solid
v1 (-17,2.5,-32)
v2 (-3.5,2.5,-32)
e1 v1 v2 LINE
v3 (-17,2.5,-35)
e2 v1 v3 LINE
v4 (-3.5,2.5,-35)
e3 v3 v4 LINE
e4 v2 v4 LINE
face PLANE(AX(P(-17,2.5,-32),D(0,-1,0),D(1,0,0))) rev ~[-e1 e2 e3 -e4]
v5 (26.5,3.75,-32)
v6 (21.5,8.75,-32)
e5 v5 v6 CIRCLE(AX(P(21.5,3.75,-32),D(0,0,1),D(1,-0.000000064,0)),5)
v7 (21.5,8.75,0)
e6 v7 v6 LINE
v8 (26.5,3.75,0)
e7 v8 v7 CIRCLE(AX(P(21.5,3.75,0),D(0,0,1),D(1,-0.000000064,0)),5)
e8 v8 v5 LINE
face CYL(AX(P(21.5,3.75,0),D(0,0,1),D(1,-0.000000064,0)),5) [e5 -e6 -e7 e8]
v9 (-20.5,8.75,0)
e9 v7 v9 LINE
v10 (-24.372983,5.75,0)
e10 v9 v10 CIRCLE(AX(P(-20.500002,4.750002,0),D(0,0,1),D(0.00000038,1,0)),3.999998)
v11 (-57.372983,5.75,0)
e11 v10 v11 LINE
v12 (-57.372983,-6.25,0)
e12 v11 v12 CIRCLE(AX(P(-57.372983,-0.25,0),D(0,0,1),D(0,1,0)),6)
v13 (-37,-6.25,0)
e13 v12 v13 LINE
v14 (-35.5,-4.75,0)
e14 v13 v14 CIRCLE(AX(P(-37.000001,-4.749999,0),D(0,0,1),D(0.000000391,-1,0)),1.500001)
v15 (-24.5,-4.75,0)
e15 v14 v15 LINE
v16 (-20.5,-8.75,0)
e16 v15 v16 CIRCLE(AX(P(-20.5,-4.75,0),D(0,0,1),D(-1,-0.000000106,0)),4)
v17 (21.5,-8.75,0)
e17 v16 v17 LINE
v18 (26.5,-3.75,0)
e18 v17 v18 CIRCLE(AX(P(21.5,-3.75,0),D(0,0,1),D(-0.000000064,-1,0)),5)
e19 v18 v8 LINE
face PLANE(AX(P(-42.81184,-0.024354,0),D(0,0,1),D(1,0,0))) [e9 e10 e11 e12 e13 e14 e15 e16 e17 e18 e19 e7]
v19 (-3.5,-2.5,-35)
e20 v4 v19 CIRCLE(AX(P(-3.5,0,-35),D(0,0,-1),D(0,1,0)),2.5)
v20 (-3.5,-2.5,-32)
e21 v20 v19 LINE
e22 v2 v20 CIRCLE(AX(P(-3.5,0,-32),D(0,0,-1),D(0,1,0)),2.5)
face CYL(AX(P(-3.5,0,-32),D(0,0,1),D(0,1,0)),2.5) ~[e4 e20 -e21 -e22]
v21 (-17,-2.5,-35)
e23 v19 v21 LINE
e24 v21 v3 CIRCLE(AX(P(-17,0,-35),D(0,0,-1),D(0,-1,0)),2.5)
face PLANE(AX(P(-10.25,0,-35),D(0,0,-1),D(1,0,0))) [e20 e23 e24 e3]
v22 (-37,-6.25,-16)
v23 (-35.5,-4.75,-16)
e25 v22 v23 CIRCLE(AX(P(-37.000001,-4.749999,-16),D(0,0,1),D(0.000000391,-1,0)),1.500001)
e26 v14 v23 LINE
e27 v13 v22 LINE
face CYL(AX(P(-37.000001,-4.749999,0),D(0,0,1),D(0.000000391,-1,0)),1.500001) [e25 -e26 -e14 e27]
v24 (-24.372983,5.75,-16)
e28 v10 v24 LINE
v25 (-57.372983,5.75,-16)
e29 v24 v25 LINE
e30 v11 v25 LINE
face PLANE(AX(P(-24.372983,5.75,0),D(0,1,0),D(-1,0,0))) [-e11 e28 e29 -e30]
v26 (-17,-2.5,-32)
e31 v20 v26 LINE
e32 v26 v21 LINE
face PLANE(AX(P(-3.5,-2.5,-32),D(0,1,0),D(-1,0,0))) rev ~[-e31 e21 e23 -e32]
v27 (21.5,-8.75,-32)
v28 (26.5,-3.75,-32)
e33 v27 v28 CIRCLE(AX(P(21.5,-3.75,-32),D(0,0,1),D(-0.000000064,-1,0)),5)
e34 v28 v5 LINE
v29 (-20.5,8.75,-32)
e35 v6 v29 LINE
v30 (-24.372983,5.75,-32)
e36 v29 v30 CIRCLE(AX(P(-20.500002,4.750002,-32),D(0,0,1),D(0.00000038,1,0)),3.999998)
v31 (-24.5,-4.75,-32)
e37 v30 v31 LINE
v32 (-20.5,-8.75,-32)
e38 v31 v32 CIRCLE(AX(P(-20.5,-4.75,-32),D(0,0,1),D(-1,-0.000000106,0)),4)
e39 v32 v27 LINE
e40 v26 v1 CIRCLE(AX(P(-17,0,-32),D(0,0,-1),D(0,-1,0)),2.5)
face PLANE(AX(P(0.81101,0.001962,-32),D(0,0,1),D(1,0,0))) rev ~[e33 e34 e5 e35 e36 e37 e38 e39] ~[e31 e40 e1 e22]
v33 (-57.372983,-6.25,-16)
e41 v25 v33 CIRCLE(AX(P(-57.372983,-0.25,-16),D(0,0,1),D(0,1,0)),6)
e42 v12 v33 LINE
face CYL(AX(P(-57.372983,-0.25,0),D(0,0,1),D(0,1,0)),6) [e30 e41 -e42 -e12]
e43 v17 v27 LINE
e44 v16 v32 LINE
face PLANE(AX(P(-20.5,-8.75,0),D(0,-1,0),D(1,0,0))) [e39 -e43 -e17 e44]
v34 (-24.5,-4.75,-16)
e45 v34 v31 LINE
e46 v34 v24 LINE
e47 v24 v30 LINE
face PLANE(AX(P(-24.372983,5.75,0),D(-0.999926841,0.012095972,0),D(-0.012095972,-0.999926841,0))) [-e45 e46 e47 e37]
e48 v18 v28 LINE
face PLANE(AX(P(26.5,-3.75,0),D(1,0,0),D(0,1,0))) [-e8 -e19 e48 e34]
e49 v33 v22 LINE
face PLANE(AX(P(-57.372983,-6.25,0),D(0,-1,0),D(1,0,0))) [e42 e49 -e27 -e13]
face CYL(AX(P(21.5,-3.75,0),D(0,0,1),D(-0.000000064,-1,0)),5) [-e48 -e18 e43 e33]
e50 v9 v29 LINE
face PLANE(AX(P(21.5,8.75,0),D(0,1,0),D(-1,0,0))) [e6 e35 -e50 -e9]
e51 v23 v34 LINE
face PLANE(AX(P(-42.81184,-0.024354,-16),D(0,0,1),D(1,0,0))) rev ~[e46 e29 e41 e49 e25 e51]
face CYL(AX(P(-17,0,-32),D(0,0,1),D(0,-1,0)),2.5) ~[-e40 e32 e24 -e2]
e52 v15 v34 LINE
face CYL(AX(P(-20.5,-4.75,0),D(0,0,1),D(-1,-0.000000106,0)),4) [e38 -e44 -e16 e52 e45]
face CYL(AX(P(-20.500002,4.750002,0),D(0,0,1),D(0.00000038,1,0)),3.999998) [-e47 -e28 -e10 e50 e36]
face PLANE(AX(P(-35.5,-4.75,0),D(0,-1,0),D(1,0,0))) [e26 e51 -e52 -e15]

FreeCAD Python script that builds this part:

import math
import FreeCAD as App
import Part
import Sketcher

doc = App.newDocument("Part")
params = doc.addObject("Spreadsheet::Sheet", "Params")
for row, (alias, value) in enumerate([
    ("sketch1_radius", "4 mm"),
    ("sketch1_radius2", "5 mm"),
    ("sketch1_width", "42 mm"),
    ("sketch1_height", "7.5 mm"),
    ("pad1_length", "32 mm"),
    ("sketch2_radius", "6 mm"),
    ("sketch2_radius2", "1.500001 mm"),
    ("sketch2_width", "33 mm"),
    ("sketch2_width2", "11 mm"),
    ("pad2_length", "16 mm"),
    ("sketch3_radius", "2.5 mm"),
    ("sketch3_width", "13.5 mm"),
    ("pad3_length", "3 mm"),
], start=1):
    params.set(f"A{row}", alias)
    params.set(f"B{row}", "=" + value)
    params.setAlias(f"B{row}", alias)

body = doc.addObject("PartDesign::Body", "Body")

# Sketch on XY plane
sketch1 = doc.addObject("Sketcher::SketchObject", "Sketch")
body.addObject(sketch1)
sketch1.AttachmentSupport = (doc.XY_Plane, [""])
sketch1.MapMode = "FlatFace"
sketch1.addGeometry([
    Part.LineSegment(App.Vector(21.5, 8.8, 0), App.Vector(-20.5, 8.8, 0)),  # 0
    Part.ArcOfCircle(Part.Circle(App.Vector(-20.5, 4.8, 0), App.Vector(0, 0, 1), 4), math.radians(90), math.radians(166)),  # 1
    Part.LineSegment(App.Vector(-24.4, 5.8, 0), App.Vector(-24.5, -4.8, 0)),  # 2
    Part.ArcOfCircle(Part.Circle(App.Vector(-20.5, -4.7, 0), App.Vector(0, 0, 1), 4), math.radians(-180), math.radians(-90)),  # 3
    Part.LineSegment(App.Vector(-20.5, -8.8, 0), App.Vector(21.5, -8.8, 0)),  # 4
    Part.ArcOfCircle(Part.Circle(App.Vector(21.5, -3.8, 0), App.Vector(0, 0, 1), 5), math.radians(-90), math.radians(0)),  # 5
    Part.LineSegment(App.Vector(26.5, -3.8, 0), App.Vector(26.5, 3.8, 0)),  # 6
    Part.ArcOfCircle(Part.Circle(App.Vector(21.5, 3.8, 0), App.Vector(0, 0, 1), 5), math.radians(0), math.radians(90)),  # 7
], False)
sketch1.addConstraint([
    Sketcher.Constraint("Tangent", 0, 2, 1, 1),
    Sketcher.Constraint("Coincident", 1, 2, 2, 1),
    Sketcher.Constraint("Coincident", 2, 2, 3, 1),
    Sketcher.Constraint("Tangent", 3, 2, 4, 1),
    Sketcher.Constraint("Tangent", 4, 2, 5, 1),
    Sketcher.Constraint("Tangent", 5, 2, 6, 1),
    Sketcher.Constraint("Tangent", 6, 2, 7, 1),
    Sketcher.Constraint("Tangent", 7, 2, 0, 1),
    Sketcher.Constraint("Horizontal", 0),
    Sketcher.Constraint("Horizontal", 4),
    Sketcher.Constraint("Vertical", 6),
    Sketcher.Constraint("Equal", 5, 7),
    Sketcher.Constraint("Symmetric", 1, 3, 3, 3, -1),
    Sketcher.Constraint("Horizontal", 3, 3, 2, 2),
    Sketcher.Constraint("Radius", 3, 4.0),
    Sketcher.Constraint("Radius", 5, 5.0),
    Sketcher.Constraint("DistanceX", 0, 2, 0, 1, 42.0),
    Sketcher.Constraint("DistanceY", 6, 1, 6, 2, 7.5),
    Sketcher.Constraint("DistanceY", 1, 2, 0, 2, 3.0),
    Sketcher.Constraint("DistanceX", 1, 3, -1, 1, 20.500002),
    Sketcher.Constraint("DistanceY", 3, 3, 1, 3, 9.500002),
])
sketch1.setExpression("Constraints[14]", "Params.sketch1_radius")
sketch1.setExpression("Constraints[15]", "Params.sketch1_radius2")
sketch1.setExpression("Constraints[16]", "Params.sketch1_width")
sketch1.setExpression("Constraints[17]", "Params.sketch1_height")
pad1 = doc.addObject("PartDesign::Pad", "Pad")
body.addObject(pad1)
pad1.Profile = sketch1
pad1.setExpression("Length", "Params.pad1_length")
pad1.Reversed = True

# Sketch on XY plane
sketch2 = doc.addObject("Sketcher::SketchObject", "Sketch001")
body.addObject(sketch2)
sketch2.AttachmentSupport = (doc.XY_Plane, [""])
sketch2.MapMode = "FlatFace"
sketch2.addGeometry([
    Part.LineSegment(App.Vector(-24.5, -4.8, 0), App.Vector(-24.4, 5.8, 0)),  # 0
    Part.LineSegment(App.Vector(-24.4, 5.8, 0), App.Vector(-57.4, 5.8, 0)),  # 1
    Part.ArcOfCircle(Part.Circle(App.Vector(-57.4, -0.2, 0), App.Vector(0, 0, 1), 6), math.radians(90), math.radians(270)),  # 2
    Part.LineSegment(App.Vector(-57.4, -6.2, 0), App.Vector(-37, -6.2, 0)),  # 3
    Part.ArcOfCircle(Part.Circle(App.Vector(-37, -4.7, 0), App.Vector(0, 0, 1), 1.5), math.radians(-90), math.radians(0)),  # 4
    Part.LineSegment(App.Vector(-35.5, -4.8, 0), App.Vector(-24.5, -4.8, 0)),  # 5
], False)
sketch2.addConstraint([
    Sketcher.Constraint("Coincident", 0, 2, 1, 1),
    Sketcher.Constraint("Tangent", 1, 2, 2, 1),
    Sketcher.Constraint("Tangent", 2, 2, 3, 1),
    Sketcher.Constraint("Tangent", 3, 2, 4, 1),
    Sketcher.Constraint("Coincident", 4, 2, 5, 1),
    Sketcher.Constraint("Coincident", 5, 2, 0, 1),
    Sketcher.Constraint("Horizontal", 1),
    Sketcher.Constraint("Horizontal", 3),
    Sketcher.Constraint("Horizontal", 5),
    Sketcher.Constraint("Radius", 2, 6.0),
    Sketcher.Constraint("Radius", 4, 1.500001),
    Sketcher.Constraint("DistanceX", 1, 2, 1, 1, 33.0),
    Sketcher.Constraint("DistanceX", 5, 1, 5, 2, 11.0),
    Sketcher.Constraint("DistanceX", 4, 3, -1, 1, 37.000001),
    Sketcher.Constraint("DistanceY", 3, 2, 4, 2, 1.5),
    Sketcher.Constraint("DistanceY", 2, 3, -1, 1, 0.25),
    Sketcher.Constraint("Distance", 0, 10.500768),
])
sketch2.setExpression("Constraints[9]", "Params.sketch2_radius")
sketch2.setExpression("Constraints[10]", "Params.sketch2_radius2")
sketch2.setExpression("Constraints[11]", "Params.sketch2_width")
sketch2.setExpression("Constraints[12]", "Params.sketch2_width2")
pad2 = doc.addObject("PartDesign::Pad", "Pad001")
body.addObject(pad2)
pad2.Profile = sketch2
pad2.setExpression("Length", "Params.pad2_length")
pad2.Reversed = True

# Sketch on XY plane
sketch3 = doc.addObject("Sketcher::SketchObject", "Sketch002")
body.addObject(sketch3)
sketch3.AttachmentSupport = (doc.XY_Plane, [""])
sketch3.MapMode = "FlatFace"
sketch3.AttachmentOffset = App.Placement(App.Vector(0, 0, -32), App.Rotation())
sketch3.addGeometry([
    Part.ArcOfCircle(Part.Circle(App.Vector(-3.5, 0, 0), App.Vector(0, 0, 1), 2.5), math.radians(-90), math.radians(90)),
    Part.LineSegment(App.Vector(-3.5, -2.5, 0), App.Vector(-17, -2.5, 0)),
    Part.ArcOfCircle(Part.Circle(App.Vector(-17, 0, 0), App.Vector(0, 0, 1), 2.5), math.radians(90), math.radians(270)),
    Part.LineSegment(App.Vector(-17, 2.5, 0), App.Vector(-3.5, 2.5, 0)),
], False)
sketch3.addConstraint([
    Sketcher.Constraint("Tangent", 0, 1, 1, 1),
    Sketcher.Constraint("Tangent", 1, 2, 2, 2),
    Sketcher.Constraint("Tangent", 2, 1, 3, 1),
    Sketcher.Constraint("Tangent", 3, 2, 0, 2),
    Sketcher.Constraint("Horizontal", 1),
    Sketcher.Constraint("Horizontal", 3),
    Sketcher.Constraint("PointOnObject", 0, 3, -1),
    Sketcher.Constraint("Radius", 0, 2.5),
    Sketcher.Constraint("DistanceX", 1, 2, 1, 1, 13.5),
    Sketcher.Constraint("DistanceX", 2, 3, -1, 1, 17.0),
])
sketch3.setExpression("Constraints[7]", "Params.sketch3_radius")
sketch3.setExpression("Constraints[8]", "Params.sketch3_width")
pad3 = doc.addObject("PartDesign::Pad", "Pad002")
body.addObject(pad3)
pad3.Profile = sketch3
pad3.setExpression("Length", "Params.pad3_length")
pad3.Reversed = True

doc.recompute()
